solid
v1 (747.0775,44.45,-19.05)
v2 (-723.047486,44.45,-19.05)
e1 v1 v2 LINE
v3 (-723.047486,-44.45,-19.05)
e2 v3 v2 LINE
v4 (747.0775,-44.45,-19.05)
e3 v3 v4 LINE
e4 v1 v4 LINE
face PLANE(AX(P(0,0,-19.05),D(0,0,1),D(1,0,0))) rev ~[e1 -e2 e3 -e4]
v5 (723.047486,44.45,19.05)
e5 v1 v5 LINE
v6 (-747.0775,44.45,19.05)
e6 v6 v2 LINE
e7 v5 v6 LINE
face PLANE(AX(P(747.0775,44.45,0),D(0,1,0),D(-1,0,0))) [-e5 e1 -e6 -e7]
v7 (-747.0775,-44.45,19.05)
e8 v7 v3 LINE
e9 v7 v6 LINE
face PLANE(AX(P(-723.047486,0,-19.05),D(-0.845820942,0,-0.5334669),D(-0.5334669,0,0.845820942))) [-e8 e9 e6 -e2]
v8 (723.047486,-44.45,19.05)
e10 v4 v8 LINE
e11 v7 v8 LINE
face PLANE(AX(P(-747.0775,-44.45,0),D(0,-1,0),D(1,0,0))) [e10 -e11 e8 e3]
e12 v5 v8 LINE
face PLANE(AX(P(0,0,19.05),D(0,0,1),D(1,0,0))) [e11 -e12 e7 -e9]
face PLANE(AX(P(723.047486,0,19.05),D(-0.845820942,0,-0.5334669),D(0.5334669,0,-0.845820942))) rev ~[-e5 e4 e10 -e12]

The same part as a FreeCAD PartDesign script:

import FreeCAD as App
import Part
import Sketcher

V = App.Vector
Q = App.Units.Quantity


def add_polygon(sketch, points):
    """Adds a closed chain of lines whose ends are joined by coincident constraints."""
    first, n = sketch.GeometryCount, len(points)
    for a, b in zip(points, points[1:] + points[:1]):
        sketch.addGeometry(Part.LineSegment(App.Vector(*a, 0), App.Vector(*b, 0)), False)
    for i in range(n):
        sketch.addConstraint(Sketcher.Constraint("Coincident", first + i, 2, first + (i + 1) % n, 1))

doc = App.newDocument("Part")
body = doc.addObject("PartDesign::Body", "Body")

sketch1 = doc.addObject("Sketcher::SketchObject", "Sketch")
body.addObject(sketch1)
sketch1.AttachmentSupport = (doc.XY_Plane, [""])
sketch1.MapMode = "FlatFace"
add_polygon(sketch1, [(747, -44), (747, 44), (-747, 44), (-747, -44)])
sketch1.addConstraint(Sketcher.Constraint("Vertical", 0))
sketch1.addConstraint(Sketcher.Constraint("Horizontal", 1))
sketch1.addConstraint(Sketcher.Constraint("Vertical", 2))
sketch1.addConstraint(Sketcher.Constraint("Horizontal", 3))
sketch1.addConstraint(Sketcher.Constraint("Symmetric", 0, 2, 2, 2, -1, 1))
sketch1.addConstraint(Sketcher.Constraint("DistanceY", 0, 1, 0, 2, Q("3.5 in")))
sketch1.addConstraint(Sketcher.Constraint("DistanceX", 1, 2, 1, 1, Q("58.825 in")))
pad1 = doc.addObject("PartDesign::Pad", "Pad")
body.addObject(pad1)
pad1.Profile = sketch1
pad1.Length = Q("1.5 in")
pad1.Midplane = True

sketch2 = doc.addObject("Sketcher::SketchObject", "Sketch001")
body.addObject(sketch2)
sketch2.AttachmentSupport = (doc.XZ_Plane, [""])
sketch2.MapMode = "FlatFace"
add_polygon(sketch2, [(723, 19), (747, -19), (747, 19)])
add_polygon(sketch2, [(-747, -19), (-723, -19), (-747, 19)])
sketch2.addConstraint(Sketcher.Constraint("Vertical", 1))
sketch2.addConstraint(Sketcher.Constraint("Horizontal", 2))
sketch2.addConstraint(Sketcher.Constraint("Horizontal", 3))
sketch2.addConstraint(Sketcher.Constraint("Vertical", 5))
sketch2.addConstraint(Sketcher.Constraint("Symmetric", 2, 2, 3, 2, -1, 1))
sketch2.addConstraint(Sketcher.Constraint("Symmetric", 0, 2, 4, 2, -1, 1))
sketch2.addConstraint(Sketcher.Constraint("Horizontal", 0, 2, 3, 2))
sketch2.addConstraint(Sketcher.Constraint("DistanceY", 1, 1, 1, 2, Q("1.5 in")))
sketch2.addConstraint(Sketcher.Constraint("Angle", 0, Q("-57.76 deg")))
sketch2.addConstraint(Sketcher.Constraint("DistanceX", 4, 2, 1, 2, Q("58.825 in")))
pocket1 = doc.addObject("PartDesign::Pocket", "Pocket")
body.addObject(pocket1)
pocket1.Profile = sketch2
pocket1.Type = "ThroughAll"
pocket1.Midplane = True

doc.recompute()
